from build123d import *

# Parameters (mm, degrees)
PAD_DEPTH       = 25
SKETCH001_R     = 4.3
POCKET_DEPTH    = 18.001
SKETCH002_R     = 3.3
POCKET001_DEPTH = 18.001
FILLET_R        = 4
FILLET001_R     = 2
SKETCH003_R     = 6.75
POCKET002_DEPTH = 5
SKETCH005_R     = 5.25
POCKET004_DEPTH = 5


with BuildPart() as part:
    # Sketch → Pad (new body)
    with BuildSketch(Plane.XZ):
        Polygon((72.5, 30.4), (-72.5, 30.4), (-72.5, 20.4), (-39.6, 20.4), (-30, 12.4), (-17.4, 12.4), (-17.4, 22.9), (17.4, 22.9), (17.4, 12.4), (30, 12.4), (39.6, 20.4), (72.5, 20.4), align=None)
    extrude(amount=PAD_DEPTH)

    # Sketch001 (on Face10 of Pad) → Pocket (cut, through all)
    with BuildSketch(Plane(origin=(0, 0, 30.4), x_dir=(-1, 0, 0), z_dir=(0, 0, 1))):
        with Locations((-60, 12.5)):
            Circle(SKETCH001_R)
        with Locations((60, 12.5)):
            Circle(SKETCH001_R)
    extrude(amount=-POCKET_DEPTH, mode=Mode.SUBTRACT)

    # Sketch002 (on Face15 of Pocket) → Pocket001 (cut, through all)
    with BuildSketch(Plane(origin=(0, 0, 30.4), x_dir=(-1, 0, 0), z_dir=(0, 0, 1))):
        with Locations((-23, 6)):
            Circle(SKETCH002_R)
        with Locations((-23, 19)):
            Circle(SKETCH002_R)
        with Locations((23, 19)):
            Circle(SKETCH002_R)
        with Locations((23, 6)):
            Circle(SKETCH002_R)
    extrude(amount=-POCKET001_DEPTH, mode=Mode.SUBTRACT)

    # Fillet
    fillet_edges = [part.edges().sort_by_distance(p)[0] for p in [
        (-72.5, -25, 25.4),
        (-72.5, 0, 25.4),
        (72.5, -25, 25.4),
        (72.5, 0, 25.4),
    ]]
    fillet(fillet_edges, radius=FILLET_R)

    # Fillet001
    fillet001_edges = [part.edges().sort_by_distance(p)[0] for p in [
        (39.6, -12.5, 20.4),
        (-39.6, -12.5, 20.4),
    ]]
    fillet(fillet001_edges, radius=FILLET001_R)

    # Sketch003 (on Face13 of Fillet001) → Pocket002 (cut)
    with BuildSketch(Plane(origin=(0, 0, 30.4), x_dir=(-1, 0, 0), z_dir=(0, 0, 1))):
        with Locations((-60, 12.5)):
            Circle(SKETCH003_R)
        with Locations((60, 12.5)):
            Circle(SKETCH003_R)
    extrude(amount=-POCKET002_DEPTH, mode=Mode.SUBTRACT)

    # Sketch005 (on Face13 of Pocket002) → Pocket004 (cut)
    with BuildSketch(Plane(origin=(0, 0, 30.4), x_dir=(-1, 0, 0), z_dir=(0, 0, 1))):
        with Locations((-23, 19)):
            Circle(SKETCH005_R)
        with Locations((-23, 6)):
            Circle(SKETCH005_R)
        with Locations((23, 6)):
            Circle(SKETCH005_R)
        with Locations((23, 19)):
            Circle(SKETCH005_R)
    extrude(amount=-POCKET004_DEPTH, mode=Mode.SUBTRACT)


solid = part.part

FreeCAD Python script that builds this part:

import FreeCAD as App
import Part
import Sketcher
from FreeCAD import Vector


def edges_at(feature, points):
    """Names of the edges that pass closest to the given points."""
    edges = feature.Shape.Edges
    near = lambda p: min(range(len(edges)), key=lambda i: edges[i].distToShape(Part.Vertex(*p))[0])
    return sorted({f"Edge{near(p) + 1}" for p in points})


def add_polygon(sketch, points):
    """Adds a closed chain of lines whose ends are joined by coincident constraints."""
    first, n = sketch.GeometryCount, len(points)
    for a, b in zip(points, points[1:] + points[:1]):
        sketch.addGeometry(Part.LineSegment(App.Vector(*a, 0), App.Vector(*b, 0)), False)
    for i in range(n):
        sketch.addConstraint(Sketcher.Constraint("Coincident", first + i, 2, first + (i + 1) % n, 1))

doc = App.newDocument("Part")
params = doc.addObject("Spreadsheet::Sheet", "Params")
for row, (alias, value) in enumerate([
    ("sketch1_width", "145 mm"),
    ("sketch1_height", "10 mm"),
    ("sketch1_width2", "32.9 mm"),
    ("sketch1_width3", "12.6 mm"),
    ("sketch1_width4", "34.8 mm"),
    ("pad1_length", "25 mm"),
    ("sketch2_diameter", "8.6 mm"),
    ("sketch3_diameter", "6.6 mm"),
    ("fillet_radius", "4 mm"),
    ("fillet2_radius", "2 mm"),
    ("sketch4_diameter", "13.5 mm"),
    ("pocket3_length", "5 mm"),
    ("sketch5_diameter", "10.5 mm"),
    ("pocket4_length", "5 mm"),
], start=1):
    params.set(f"A{row}", alias)
    params.set(f"B{row}", "=" + value)
    params.setAlias(f"B{row}", alias)

body = doc.addObject("PartDesign::Body", "Body")

# Sketch on XZ plane
sketch1 = doc.addObject("Sketcher::SketchObject", "Sketch")
body.addObject(sketch1)
sketch1.AttachmentSupport = (doc.XZ_Plane, [""])
sketch1.MapMode = "FlatFace"
add_polygon(sketch1, [(72, 30), (-72, 30), (-72, 20), (-40, 20), (-30, 12), (-17, 12), (-17, 23), (17, 23), (17, 12), (30, 12), (40, 20), (72, 20)])  # lines 0-11
sketch1.addConstraint([
    Sketcher.Constraint("Horizontal", 0),
    Sketcher.Constraint("Vertical", 1),
    Sketcher.Constraint("Horizontal", 2),
    Sketcher.Constraint("Horizontal", 4),
    Sketcher.Constraint("Vertical", 5),
    Sketcher.Constraint("Horizontal", 6),
    Sketcher.Constraint("Vertical", 7),
    Sketcher.Constraint("Horizontal", 8),
    Sketcher.Constraint("Horizontal", 10),
    Sketcher.Constraint("Vertical", 11),
    Sketcher.Constraint("Symmetric", 4, 2, 7, 2, -2),
    Sketcher.Constraint("Symmetric", 2, 2, 9, 2, -2),
    Sketcher.Constraint("Equal", 4, 8),
    Sketcher.Constraint("Equal", 2, 10),
    Sketcher.Constraint("DistanceX", 0, 2, 0, 1, 145.0),
    Sketcher.Constraint("DistanceY", 1, 2, 1, 1, 10.0),
    Sketcher.Constraint("DistanceX", 2, 1, 2, 2, 32.9),
    Sketcher.Constraint("DistanceX", 4, 1, 4, 2, 12.6),
    Sketcher.Constraint("DistanceX", 6, 1, 6, 2, 34.8),
    Sketcher.Constraint("DistanceY", 5, 1, 5, 2, 10.5),
    Sketcher.Constraint("DistanceY", 3, 2, 2, 2, 8.0),
    Sketcher.Constraint("DistanceY", -1, 1, 0, 2, 30.4),
])
sketch1.setExpression("Constraints[26]", "Params.sketch1_width")
sketch1.setExpression("Constraints[27]", "Params.sketch1_height")
sketch1.setExpression("Constraints[28]", "Params.sketch1_width2")
sketch1.setExpression("Constraints[29]", "Params.sketch1_width3")
sketch1.setExpression("Constraints[30]", "Params.sketch1_width4")
pad1 = doc.addObject("PartDesign::Pad", "Pad")
body.addObject(pad1)
pad1.Profile = sketch1
pad1.setExpression("Length", "Params.pad1_length")

# Sketch on XY plane
sketch2 = doc.addObject("Sketcher::SketchObject", "Sketch001")
body.addObject(sketch2)
sketch2.AttachmentSupport = (doc.XY_Plane, [""])
sketch2.MapMode = "FlatFace"
sketch2.AttachmentOffset = App.Placement(Vector(0, 0, 30.4), App.Rotation())
sketch2.addGeometry([
    Part.Circle(Vector(60, -12.5, 0), Vector(0, 0, 1), 4.3),
    Part.Circle(Vector(-60, -12.5, 0), Vector(0, 0, 1), 4.3),
], False)
sketch2.addConstraint([
    Sketcher.Constraint("Equal", 0, 1),
    Sketcher.Constraint("Symmetric", 0, 3, 1, 3, -2),
    Sketcher.Constraint("Diameter", 0, 8.6),
    Sketcher.Constraint("DistanceX", -1, 1, 0, 3, 60.0),
    Sketcher.Constraint("DistanceY", 0, 3, -1, 1, 12.5),
])
sketch2.setExpression("Constraints[2]", "Params.sketch2_diameter")
pocket1 = doc.addObject("PartDesign::Pocket", "Pocket")
body.addObject(pocket1)
pocket1.Profile = sketch2
pocket1.Type = "ThroughAll"

# Sketch on XY plane
sketch3 = doc.addObject("Sketcher::SketchObject", "Sketch002")
body.addObject(sketch3)
sketch3.AttachmentSupport = (doc.XY_Plane, [""])
sketch3.MapMode = "FlatFace"
sketch3.AttachmentOffset = App.Placement(Vector(0, 0, 30.4), App.Rotation())
sketch3.addGeometry([
    Part.Circle(Vector(23, -6, 0), Vector(0, 0, 1), 3.3),
    Part.Circle(Vector(23, -19, 0), Vector(0, 0, 1), 3.3),
    Part.Circle(Vector(-23, -19, 0), Vector(0, 0, 1), 3.3),
    Part.Circle(Vector(-23, -6, 0), Vector(0, 0, 1), 3.3),
], False)
sketch3.addConstraint([
    Sketcher.Constraint("Equal", 0, 1),
    Sketcher.Constraint("Equal", 1, 2),
    Sketcher.Constraint("Equal", 2, 3),
    Sketcher.Constraint("Symmetric", 1, 3, 2, 3, -2),
    Sketcher.Constraint("Symmetric", 0, 3, 3, 3, -2),
    Sketcher.Constraint("Vertical", 0, 3, 1, 3),
    Sketcher.Constraint("Diameter", 0, 6.6),
    Sketcher.Constraint("DistanceX", -1, 1, 0, 3, 23.0),
    Sketcher.Constraint("DistanceY", 0, 3, -1, 1, 6.0),
    Sketcher.Constraint("DistanceY", 1, 3, -1, 1, 19.0),
])
sketch3.setExpression("Constraints[6]", "Params.sketch3_diameter")
pocket2 = doc.addObject("PartDesign::Pocket", "Pocket001")
body.addObject(pocket2)
pocket2.Profile = sketch3
pocket2.Type = "ThroughAll"
doc.recompute()

fillet = doc.addObject("PartDesign::Fillet", "Fillet")
body.addObject(fillet)
fillet.Base = (pocket2, edges_at(pocket2, [
    (-72.5, -25, 25.4),
    (-72.5, 0, 25.4),
    (72.5, -25, 25.4),
    (72.5, 0, 25.4),
]))
fillet.setExpression("Radius", "Params.fillet_radius")
doc.recompute()

fillet2 = doc.addObject("PartDesign::Fillet", "Fillet001")
body.addObject(fillet2)
fillet2.Base = (fillet, edges_at(fillet, [(39.6, -12.5, 20.4), (-39.6, -12.5, 20.4)]))
fillet2.setExpression("Radius", "Params.fillet2_radius")

# Sketch on XY plane
sketch4 = doc.addObject("Sketcher::SketchObject", "Sketch003")
body.addObject(sketch4)
sketch4.AttachmentSupport = (doc.XY_Plane, [""])
sketch4.MapMode = "FlatFace"
sketch4.AttachmentOffset = App.Placement(Vector(0, 0, 30.4), App.Rotation())
sketch4.addGeometry([
    Part.Circle(Vector(60, -12, 0), Vector(0, 0, 1), 7),
    Part.Circle(Vector(-60, -12, 0), Vector(0, 0, 1), 7),
], False)
sketch4.addConstraint([
    Sketcher.Constraint("Equal", 0, 1),
    Sketcher.Constraint("Symmetric", 0, 3, 1, 3, -2),
    Sketcher.Constraint("Diameter", 0, 13.5),
    Sketcher.Constraint("DistanceX", -1, 1, 0, 3, 60.0),
    Sketcher.Constraint("DistanceY", 0, 3, -1, 1, 12.5),
])
sketch4.setExpression("Constraints[2]", "Params.sketch4_diameter")
pocket3 = doc.addObject("PartDesign::Pocket", "Pocket002")
body.addObject(pocket3)
pocket3.Profile = sketch4
pocket3.setExpression("Length", "Params.pocket3_length")

# Sketch on XY plane
sketch5 = doc.addObject("Sketcher::SketchObject", "Sketch004")
body.addObject(sketch5)
sketch5.AttachmentSupport = (doc.XY_Plane, [""])
sketch5.MapMode = "FlatFace"
sketch5.AttachmentOffset = App.Placement(Vector(0, 0, 30.4), App.Rotation())
sketch5.addGeometry([
    Part.Circle(Vector(23, -19, 0), Vector(0, 0, 1), 5),
    Part.Circle(Vector(23, -6, 0), Vector(0, 0, 1), 5),
    Part.Circle(Vector(-23, -6, 0), Vector(0, 0, 1), 5),
    Part.Circle(Vector(-23, -19, 0), Vector(0, 0, 1), 5),
], False)
sketch5.addConstraint([
    Sketcher.Constraint("Equal", 0, 1),
    Sketcher.Constraint("Equal", 1, 2),
    Sketcher.Constraint("Equal", 2, 3),
    Sketcher.Constraint("Symmetric", 1, 3, 2, 3, -2),
    Sketcher.Constraint("Symmetric", 0, 3, 3, 3, -2),
    Sketcher.Constraint("Vertical", 0, 3, 1, 3),
    Sketcher.Constraint("Diameter", 0, 10.5),
    Sketcher.Constraint("DistanceX", -1, 1, 0, 3, 23.0),
    Sketcher.Constraint("DistanceY", 0, 3, -1, 1, 19.0),
    Sketcher.Constraint("DistanceY", 1, 3, -1, 1, 6.0),
])
sketch5.setExpression("Constraints[6]", "Params.sketch5_diameter")
pocket4 = doc.addObject("PartDesign::Pocket", "Pocket003")
body.addObject(pocket4)
pocket4.Profile = sketch5
pocket4.setExpression("Length", "Params.pocket4_length")

doc.recompute()
